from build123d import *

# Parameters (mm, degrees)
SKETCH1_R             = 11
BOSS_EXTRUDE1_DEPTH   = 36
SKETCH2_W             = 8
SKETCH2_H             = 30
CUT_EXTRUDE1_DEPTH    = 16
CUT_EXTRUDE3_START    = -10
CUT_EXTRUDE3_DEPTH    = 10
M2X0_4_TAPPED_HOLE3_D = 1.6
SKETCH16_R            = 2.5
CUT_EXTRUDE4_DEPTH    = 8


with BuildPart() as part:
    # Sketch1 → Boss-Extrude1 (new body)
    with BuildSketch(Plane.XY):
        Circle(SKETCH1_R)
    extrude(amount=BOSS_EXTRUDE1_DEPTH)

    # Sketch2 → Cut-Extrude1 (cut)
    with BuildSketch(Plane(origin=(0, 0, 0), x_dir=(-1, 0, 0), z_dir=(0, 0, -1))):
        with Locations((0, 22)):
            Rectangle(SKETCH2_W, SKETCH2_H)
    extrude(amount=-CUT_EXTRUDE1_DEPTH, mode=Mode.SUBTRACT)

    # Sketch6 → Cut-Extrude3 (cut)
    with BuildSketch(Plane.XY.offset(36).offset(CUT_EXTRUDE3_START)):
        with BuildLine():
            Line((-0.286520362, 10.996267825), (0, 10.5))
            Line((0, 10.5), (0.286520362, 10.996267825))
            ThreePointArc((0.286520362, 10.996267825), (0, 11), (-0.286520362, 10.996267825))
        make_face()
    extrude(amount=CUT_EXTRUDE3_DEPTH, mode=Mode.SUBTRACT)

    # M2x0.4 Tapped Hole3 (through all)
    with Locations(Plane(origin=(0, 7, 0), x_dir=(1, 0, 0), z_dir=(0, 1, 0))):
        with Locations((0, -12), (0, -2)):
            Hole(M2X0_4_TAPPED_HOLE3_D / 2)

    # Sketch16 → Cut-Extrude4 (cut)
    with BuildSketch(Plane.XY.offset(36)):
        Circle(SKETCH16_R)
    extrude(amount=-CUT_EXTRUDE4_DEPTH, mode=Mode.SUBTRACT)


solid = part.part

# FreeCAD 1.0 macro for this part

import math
import FreeCAD as App
import Part
import Sketcher
from FreeCAD import Vector
Q = App.Units.Quantity

doc = App.newDocument("Part")
body = doc.addObject("PartDesign::Body", "Body")

# Sketch on XY plane
sketch1 = doc.addObject("Sketcher::SketchObject", "Sketch")
body.addObject(sketch1)
sketch1.AttachmentSupport = (doc.XY_Plane, [""])
sketch1.MapMode = "FlatFace"
sketch1.addGeometry(Part.Circle(Vector(0, 0, 0), Vector(0, 0, 1), 11), False)
sketch1.addConstraint([
    Sketcher.Constraint("Coincident", 0, 3, -1, 1),
    Sketcher.Constraint("Diameter", 0, 22.0),
])
pad1 = doc.addObject("PartDesign::Pad", "Pad")
body.addObject(pad1)
pad1.Profile = sketch1
pad1.Length = 36

# Sketch on XY plane
sketch2 = doc.addObject("Sketcher::SketchObject", "Sketch001")
body.addObject(sketch2)
sketch2.AttachmentSupport = (doc.XY_Plane, [""])
sketch2.MapMode = "FlatFace"
sketch2.addGeometry([
    Part.LineSegment(Vector(4, 37, 0), Vector(4, 7, 0)),
    Part.LineSegment(Vector(4, 7, 0), Vector(-4, 7, 0)),
    Part.LineSegment(Vector(-4, 7, 0), Vector(-4, 37, 0)),
    Part.LineSegment(Vector(-4, 37, 0), Vector(4, 37, 0)),
], False)
sketch2.addConstraint([
    Sketcher.Constraint("Coincident", 0, 2, 1, 1),
    Sketcher.Constraint("Coincident", 1, 2, 2, 1),
    Sketcher.Constraint("Coincident", 2, 2, 3, 1),
    Sketcher.Constraint("Coincident", 3, 2, 0, 1),
    Sketcher.Constraint("Vertical", 0),
    Sketcher.Constraint("Horizontal", 1),
    Sketcher.Constraint("Vertical", 2),
    Sketcher.Constraint("Horizontal", 3),
    Sketcher.Constraint("DistanceX", 1, 2, 1, 1, 8.0),
    Sketcher.Constraint("DistanceY", 0, 2, 0, 1, 30.0),
    Sketcher.Constraint("DistanceX", -1, 1, 0, 2, 4.0),
    Sketcher.Constraint("DistanceY", -1, 1, 0, 2, 7.0),
])
pocket1 = doc.addObject("PartDesign::Pocket", "Pocket")
body.addObject(pocket1)
pocket1.Profile = sketch2
pocket1.Length = 16
pocket1.Reversed = True

# Sketch on XY plane
sketch3 = doc.addObject("Sketcher::SketchObject", "Sketch002")
body.addObject(sketch3)
sketch3.AttachmentSupport = (doc.XY_Plane, [""])
sketch3.MapMode = "FlatFace"
sketch3.AttachmentOffset = App.Placement(Vector(0, 0, 26), App.Rotation())
sketch3.addGeometry([
    Part.LineSegment(Vector(-0.3, 11, 0), Vector(0, 10.5, 0)),
    Part.LineSegment(Vector(0, 10.5, 0), Vector(0.3, 11, 0)),
    Part.ArcOfCircle(Part.Circle(Vector(0, 0, 0), Vector(0, 0, 1), 11), math.radians(88.51), math.radians(91.49)),
], False)
sketch3.addConstraint([
    Sketcher.Constraint("Coincident", 0, 2, 1, 1),
    Sketcher.Constraint("Coincident", 1, 2, 2, 1),
    Sketcher.Constraint("Coincident", 2, 2, 0, 1),
    Sketcher.Constraint("Coincident", 2, 3, -1, 1),
    Sketcher.Constraint("PointOnObject", 0, 2, -2),
    Sketcher.Constraint("Horizontal", 1, 2, 2, 2),
    Sketcher.Constraint("Radius", 2, 11.0),
    Sketcher.Constraint("Angle", 0, Q("-60 deg")),
    Sketcher.Constraint("DistanceY", -1, 1, 0, 2, 10.5),
])
pocket2 = doc.addObject("PartDesign::Pocket", "Pocket001")
body.addObject(pocket2)
pocket2.Profile = sketch3
pocket2.Length = 10
pocket2.Reversed = True

# Sketch on XZ plane
sketch4 = doc.addObject("Sketcher::SketchObject", "Sketch003")
body.addObject(sketch4)
sketch4.AttachmentSupport = (doc.XZ_Plane, [""])
sketch4.MapMode = "FlatFace"
sketch4.AttachmentOffset = App.Placement(Vector(0, 0, -7), App.Rotation())
sketch4.addGeometry([
    Part.Circle(Vector(0, 12, 0), Vector(0, 0, 1), 0.8),
    Part.Circle(Vector(0, 2, 0), Vector(0, 0, 1), 0.8),
], False)
sketch4.addConstraint([
    Sketcher.Constraint("Equal", 0, 1),
    Sketcher.Constraint("PointOnObject", 0, 3, -2),
    Sketcher.Constraint("PointOnObject", 1, 3, -2),
    Sketcher.Constraint("Diameter", 0, 1.6),
    Sketcher.Constraint("DistanceY", -1, 1, 0, 3, 12.0),
    Sketcher.Constraint("DistanceY", -1, 1, 1, 3, 2.0),
])
doc.recompute()
hole = doc.addObject("PartDesign::Hole", "Hole")
body.addObject(hole)
hole.Profile = sketch4
hole.ThreadType = "None"
hole.Diameter = 1.6
hole.DepthType = "ThroughAll"
hole.Reversed = True

# Sketch on XY plane
sketch5 = doc.addObject("Sketcher::SketchObject", "Sketch004")
body.addObject(sketch5)
sketch5.AttachmentSupport = (doc.XY_Plane, [""])
sketch5.MapMode = "FlatFace"
sketch5.AttachmentOffset = App.Placement(Vector(0, 0, 36), App.Rotation())
sketch5.addGeometry(Part.Circle(Vector(0, 0, 0), Vector(0, 0, 1), 2.5), False)
sketch5.addConstraint([
    Sketcher.Constraint("Coincident", 0, 3, -1, 1),
    Sketcher.Constraint("Diameter", 0, 5.0),
])
pocket3 = doc.addObject("PartDesign::Pocket", "Pocket002")
body.addObject(pocket3)
pocket3.Profile = sketch5
pocket3.Length = 8

doc.recompute()
